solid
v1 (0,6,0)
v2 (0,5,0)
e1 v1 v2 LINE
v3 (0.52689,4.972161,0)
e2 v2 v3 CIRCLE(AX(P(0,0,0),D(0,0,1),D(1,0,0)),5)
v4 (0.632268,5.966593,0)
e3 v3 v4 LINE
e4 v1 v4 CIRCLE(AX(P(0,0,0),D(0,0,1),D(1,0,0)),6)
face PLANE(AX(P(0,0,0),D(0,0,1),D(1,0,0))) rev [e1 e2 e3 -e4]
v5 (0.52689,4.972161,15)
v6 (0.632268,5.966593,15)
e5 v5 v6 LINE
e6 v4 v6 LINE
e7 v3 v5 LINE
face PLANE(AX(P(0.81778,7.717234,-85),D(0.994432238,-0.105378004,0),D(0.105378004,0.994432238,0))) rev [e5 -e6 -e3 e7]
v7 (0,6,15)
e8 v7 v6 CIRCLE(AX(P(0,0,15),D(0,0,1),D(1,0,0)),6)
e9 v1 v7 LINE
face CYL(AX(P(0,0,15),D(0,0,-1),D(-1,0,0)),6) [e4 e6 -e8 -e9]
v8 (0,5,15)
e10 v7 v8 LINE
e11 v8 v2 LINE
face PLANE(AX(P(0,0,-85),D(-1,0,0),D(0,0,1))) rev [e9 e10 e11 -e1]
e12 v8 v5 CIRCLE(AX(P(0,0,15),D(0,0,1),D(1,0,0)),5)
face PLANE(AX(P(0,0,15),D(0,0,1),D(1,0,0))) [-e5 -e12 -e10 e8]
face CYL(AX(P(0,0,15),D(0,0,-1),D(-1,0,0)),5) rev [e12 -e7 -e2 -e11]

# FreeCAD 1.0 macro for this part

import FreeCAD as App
import Part
import Sketcher
Q = App.Units.Quantity


def add_polygon(sketch, points):
    """Adds a closed chain of lines whose ends are joined by coincident constraints."""
    first, n = sketch.GeometryCount, len(points)
    for a, b in zip(points, points[1:] + points[:1]):
        sketch.addGeometry(Part.LineSegment(App.Vector(*a, 0), App.Vector(*b, 0)), False)
    for i in range(n):
        sketch.addConstraint(Sketcher.Constraint("Coincident", first + i, 2, first + (i + 1) % n, 1))

doc = App.newDocument("Part")
body = doc.addObject("PartDesign::Body", "Body")

# Sketch on XY plane
sketch1 = body.newObject("Sketcher::SketchObject", "Sketch")
sketch1.AttachmentSupport = (doc.getObject("XY_Plane"), [""])
sketch1.MapMode = "FlatFace"
sketch1.addGeometry(Part.Circle(App.Vector(0, 0, 0), App.Vector(0, 0, 1), 6), False)
sketch1.addGeometry(Part.Circle(App.Vector(0, 0, 0), App.Vector(0, 0, 1), 5), False)
sketch1.addConstraint(Sketcher.Constraint("Coincident", 0, 3, -1, 1))
sketch1.addConstraint(Sketcher.Constraint("Coincident", 1, 3, -1, 1))
sketch1.addConstraint(Sketcher.Constraint("Diameter", 0, Q("12 mm")))
sketch1.addConstraint(Sketcher.Constraint("Diameter", 1, Q("10 mm")))
pad1 = body.newObject("PartDesign::Pad", "Pad")
pad1.Profile = sketch1
pad1.Length = 15

# Sketch on XY plane
sketch2 = body.newObject("Sketcher::SketchObject", "Sketch001")
sketch2.AttachmentSupport = (doc.getObject("XY_Plane"), [""])
sketch2.MapMode = "FlatFace"
sketch2.AttachmentOffset = App.Placement(App.Vector(0, 0, 15), App.Rotation())
add_polygon(sketch2, [(0, 6), (0, 0), (0.81778, 7.717234)])  # lines 0-2
sketch2.addConstraint(Sketcher.Constraint("Vertical", 0))
sketch2.addConstraint(Sketcher.Constraint("Coincident", 0, 2, -1, 1))
sketch2.addConstraint(Sketcher.Constraint("DistanceY", 0, 2, 0, 1, Q("6 mm")))
sketch2.addConstraint(Sketcher.Constraint("DistanceX", -1, 1, 1, 2, Q("0.81778 mm")))
sketch2.addConstraint(Sketcher.Constraint("Distance", 1, Q("7.760443 mm")))
pocket1 = body.newObject("PartDesign::Pocket", "Pocket")
pocket1.Profile = sketch2
pocket1.Length = 100

doc.recompute()
